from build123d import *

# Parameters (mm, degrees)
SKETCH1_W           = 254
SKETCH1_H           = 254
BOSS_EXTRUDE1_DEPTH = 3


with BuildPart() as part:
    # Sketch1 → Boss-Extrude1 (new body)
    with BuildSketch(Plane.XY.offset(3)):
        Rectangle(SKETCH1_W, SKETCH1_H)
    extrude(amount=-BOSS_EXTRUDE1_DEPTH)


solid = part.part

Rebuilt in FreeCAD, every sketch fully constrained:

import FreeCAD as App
import Part
import Sketcher
Q = App.Units.Quantity


def add_polygon(sketch, points):
    """Adds a closed chain of lines whose ends are joined by coincident constraints."""
    first, n = sketch.GeometryCount, len(points)
    for a, b in zip(points, points[1:] + points[:1]):
        sketch.addGeometry(Part.LineSegment(App.Vector(*a, 0), App.Vector(*b, 0)), False)
    for i in range(n):
        sketch.addConstraint(Sketcher.Constraint("Coincident", first + i, 2, first + (i + 1) % n, 1))

doc = App.newDocument("Part")
body = doc.addObject("PartDesign::Body", "Body")

sketch1 = doc.addObject("Sketcher::SketchObject", "Sketch")
body.addObject(sketch1)
sketch1.AttachmentSupport = (doc.XY_Plane, [""])
sketch1.MapMode = "FlatFace"
sketch1.AttachmentOffset = App.Placement(App.Vector(0, 0, 3), App.Rotation())
add_polygon(sketch1, [(-127, 127), (-127, -127), (127, -127), (127, 127)])
sketch1.addConstraint(Sketcher.Constraint("Vertical", 0))
sketch1.addConstraint(Sketcher.Constraint("Horizontal", 1))
sketch1.addConstraint(Sketcher.Constraint("Vertical", 2))
sketch1.addConstraint(Sketcher.Constraint("Horizontal", 3))
sketch1.addConstraint(Sketcher.Constraint("Symmetric", 0, 2, 2, 2, -1, 1))
sketch1.addConstraint(Sketcher.Constraint("Equal", 3, 0))
sketch1.addConstraint(Sketcher.Constraint("DistanceX", 1, 1, 1, 2, Q("254 mm")))
pad1 = doc.addObject("PartDesign::Pad", "Pad")
body.addObject(pad1)
pad1.Profile = sketch1
pad1.Length = 3
pad1.Reversed = True

doc.recompute()
